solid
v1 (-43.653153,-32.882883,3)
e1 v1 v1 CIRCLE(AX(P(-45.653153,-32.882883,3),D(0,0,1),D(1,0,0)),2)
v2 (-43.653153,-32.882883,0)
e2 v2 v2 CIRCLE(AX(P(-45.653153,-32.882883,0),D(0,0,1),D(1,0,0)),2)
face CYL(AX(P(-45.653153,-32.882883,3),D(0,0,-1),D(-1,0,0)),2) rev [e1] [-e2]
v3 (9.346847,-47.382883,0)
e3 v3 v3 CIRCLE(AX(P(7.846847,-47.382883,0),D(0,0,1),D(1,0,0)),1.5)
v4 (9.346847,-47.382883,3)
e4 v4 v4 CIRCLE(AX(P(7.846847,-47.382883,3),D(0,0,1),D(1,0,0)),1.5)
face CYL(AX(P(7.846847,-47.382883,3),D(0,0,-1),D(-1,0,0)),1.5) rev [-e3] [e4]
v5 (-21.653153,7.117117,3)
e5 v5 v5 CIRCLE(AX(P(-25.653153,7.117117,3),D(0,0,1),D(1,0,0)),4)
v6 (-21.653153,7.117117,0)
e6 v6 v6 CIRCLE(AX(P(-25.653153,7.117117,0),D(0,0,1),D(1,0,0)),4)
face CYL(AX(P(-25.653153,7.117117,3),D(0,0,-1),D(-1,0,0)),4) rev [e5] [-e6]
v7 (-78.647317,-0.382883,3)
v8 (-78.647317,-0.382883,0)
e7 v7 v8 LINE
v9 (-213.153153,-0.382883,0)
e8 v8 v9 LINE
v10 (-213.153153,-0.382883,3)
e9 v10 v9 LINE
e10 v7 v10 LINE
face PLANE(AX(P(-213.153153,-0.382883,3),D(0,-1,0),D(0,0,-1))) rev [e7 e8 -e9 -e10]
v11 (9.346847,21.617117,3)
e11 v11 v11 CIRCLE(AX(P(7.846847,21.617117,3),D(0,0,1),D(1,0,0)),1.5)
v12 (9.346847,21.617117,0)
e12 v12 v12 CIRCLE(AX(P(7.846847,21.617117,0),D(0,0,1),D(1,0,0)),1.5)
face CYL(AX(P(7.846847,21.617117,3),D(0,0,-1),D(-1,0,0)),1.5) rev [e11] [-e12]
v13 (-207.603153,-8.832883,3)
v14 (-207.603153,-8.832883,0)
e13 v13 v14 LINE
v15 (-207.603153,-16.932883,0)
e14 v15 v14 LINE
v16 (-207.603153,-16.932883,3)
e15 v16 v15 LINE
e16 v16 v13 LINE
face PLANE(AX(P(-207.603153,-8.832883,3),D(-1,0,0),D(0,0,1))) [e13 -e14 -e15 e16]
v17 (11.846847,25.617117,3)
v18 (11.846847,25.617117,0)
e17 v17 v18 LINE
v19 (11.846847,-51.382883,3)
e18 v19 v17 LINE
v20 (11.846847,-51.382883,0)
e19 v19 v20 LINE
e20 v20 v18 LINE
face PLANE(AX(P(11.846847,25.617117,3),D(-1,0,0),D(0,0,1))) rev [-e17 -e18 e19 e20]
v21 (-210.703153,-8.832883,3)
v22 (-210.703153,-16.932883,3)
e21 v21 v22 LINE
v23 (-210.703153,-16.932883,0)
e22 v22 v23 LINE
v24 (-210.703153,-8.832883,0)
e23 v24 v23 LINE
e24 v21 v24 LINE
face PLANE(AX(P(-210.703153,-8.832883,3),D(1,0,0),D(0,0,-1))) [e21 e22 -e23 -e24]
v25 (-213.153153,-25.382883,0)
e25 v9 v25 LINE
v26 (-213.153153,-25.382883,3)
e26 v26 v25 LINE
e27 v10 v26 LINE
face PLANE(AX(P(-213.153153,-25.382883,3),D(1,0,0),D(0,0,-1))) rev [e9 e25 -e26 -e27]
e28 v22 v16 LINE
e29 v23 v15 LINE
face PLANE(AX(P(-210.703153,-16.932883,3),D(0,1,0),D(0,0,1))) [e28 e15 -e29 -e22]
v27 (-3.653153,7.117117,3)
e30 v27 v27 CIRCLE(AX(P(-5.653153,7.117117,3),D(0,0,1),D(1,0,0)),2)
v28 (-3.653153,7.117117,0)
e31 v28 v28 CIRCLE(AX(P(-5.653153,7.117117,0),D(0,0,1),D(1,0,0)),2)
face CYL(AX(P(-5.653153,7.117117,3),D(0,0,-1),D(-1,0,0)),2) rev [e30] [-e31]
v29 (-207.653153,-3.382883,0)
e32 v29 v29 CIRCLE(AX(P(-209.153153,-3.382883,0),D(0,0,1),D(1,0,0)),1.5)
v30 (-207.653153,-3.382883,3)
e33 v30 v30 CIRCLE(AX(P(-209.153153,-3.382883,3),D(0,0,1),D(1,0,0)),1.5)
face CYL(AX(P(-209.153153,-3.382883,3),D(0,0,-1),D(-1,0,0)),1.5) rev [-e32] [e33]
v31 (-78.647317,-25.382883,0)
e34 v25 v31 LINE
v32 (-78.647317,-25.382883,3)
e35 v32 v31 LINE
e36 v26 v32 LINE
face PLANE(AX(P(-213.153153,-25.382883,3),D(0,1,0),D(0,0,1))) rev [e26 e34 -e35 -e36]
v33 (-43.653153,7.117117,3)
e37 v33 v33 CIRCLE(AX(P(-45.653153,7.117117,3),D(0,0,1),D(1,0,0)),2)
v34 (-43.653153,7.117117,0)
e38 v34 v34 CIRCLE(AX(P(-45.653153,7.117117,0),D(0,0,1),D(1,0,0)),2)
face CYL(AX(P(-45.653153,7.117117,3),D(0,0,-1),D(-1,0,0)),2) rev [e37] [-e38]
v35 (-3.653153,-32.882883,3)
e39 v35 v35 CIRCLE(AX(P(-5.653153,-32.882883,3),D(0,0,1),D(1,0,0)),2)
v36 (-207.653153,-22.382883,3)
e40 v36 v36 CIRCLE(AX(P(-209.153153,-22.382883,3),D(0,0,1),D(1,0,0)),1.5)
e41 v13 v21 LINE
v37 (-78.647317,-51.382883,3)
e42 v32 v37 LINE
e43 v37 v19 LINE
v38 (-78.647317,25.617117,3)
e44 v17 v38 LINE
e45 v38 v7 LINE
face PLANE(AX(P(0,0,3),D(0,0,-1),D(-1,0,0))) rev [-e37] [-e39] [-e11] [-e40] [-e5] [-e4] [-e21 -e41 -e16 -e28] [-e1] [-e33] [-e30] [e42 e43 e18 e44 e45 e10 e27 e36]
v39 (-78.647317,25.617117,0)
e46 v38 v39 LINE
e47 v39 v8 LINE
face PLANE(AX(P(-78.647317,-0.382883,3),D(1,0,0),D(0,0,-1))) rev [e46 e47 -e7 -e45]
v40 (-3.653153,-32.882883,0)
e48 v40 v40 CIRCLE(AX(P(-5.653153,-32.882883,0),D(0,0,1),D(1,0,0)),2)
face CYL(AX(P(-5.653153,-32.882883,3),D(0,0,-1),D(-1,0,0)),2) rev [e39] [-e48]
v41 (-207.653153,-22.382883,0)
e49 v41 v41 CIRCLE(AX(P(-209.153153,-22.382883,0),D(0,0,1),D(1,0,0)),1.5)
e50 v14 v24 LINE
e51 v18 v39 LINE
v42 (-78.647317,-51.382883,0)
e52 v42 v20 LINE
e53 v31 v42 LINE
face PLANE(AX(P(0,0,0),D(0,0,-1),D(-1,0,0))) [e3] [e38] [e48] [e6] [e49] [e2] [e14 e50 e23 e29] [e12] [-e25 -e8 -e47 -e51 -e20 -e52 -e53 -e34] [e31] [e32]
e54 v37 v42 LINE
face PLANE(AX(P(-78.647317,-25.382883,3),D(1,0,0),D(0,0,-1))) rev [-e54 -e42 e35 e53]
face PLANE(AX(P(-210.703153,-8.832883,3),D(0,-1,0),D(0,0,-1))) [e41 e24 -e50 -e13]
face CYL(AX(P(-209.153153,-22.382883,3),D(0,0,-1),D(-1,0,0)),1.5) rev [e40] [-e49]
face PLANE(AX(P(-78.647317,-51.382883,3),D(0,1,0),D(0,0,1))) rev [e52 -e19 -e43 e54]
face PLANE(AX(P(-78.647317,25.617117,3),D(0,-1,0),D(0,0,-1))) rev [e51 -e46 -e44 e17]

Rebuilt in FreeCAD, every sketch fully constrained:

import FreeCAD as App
import Part
import Sketcher

V = App.Vector
Q = App.Units.Quantity


def add_polygon(sketch, points):
    """Adds a closed chain of lines whose ends are joined by coincident constraints."""
    first, n = sketch.GeometryCount, len(points)
    for a, b in zip(points, points[1:] + points[:1]):
        sketch.addGeometry(Part.LineSegment(App.Vector(*a, 0), App.Vector(*b, 0)), False)
    for i in range(n):
        sketch.addConstraint(Sketcher.Constraint("Coincident", first + i, 2, first + (i + 1) % n, 1))

doc = App.newDocument("Part")
body = doc.addObject("PartDesign::Body", "Body")

sketch1 = doc.addObject("Sketcher::SketchObject", "Sketch")
body.addObject(sketch1)
sketch1.AttachmentSupport = (doc.XY_Plane, [""])
sketch1.MapMode = "FlatFace"
add_polygon(sketch1, [(11.8, -51.4), (11.8, 25.6), (-78.6, 25.6), (-78.6, -0.4), (-213.2, -0.4), (-213.2, -25.4), (-78.6, -25.4), (-78.6, -51.4)])
sketch1.addGeometry(Part.Circle(V(7.8, -47.4, 0), V(0, 0, 1), 1.5), False)
sketch1.addGeometry(Part.Circle(V(-5.7, -32.9, 0), V(0, 0, 1), 2), False)
sketch1.addGeometry(Part.Circle(V(-45.7, -32.9, 0), V(0, 0, 1), 2), False)
sketch1.addGeometry(Part.Circle(V(-209.2, -22.4, 0), V(0, 0, 1), 1.5), False)
sketch1.addGeometry(Part.Circle(V(-5.7, 7.1, 0), V(0, 0, 1), 2), False)
sketch1.addGeometry(Part.Circle(V(-25.7, 7.1, 0), V(0, 0, 1), 4), False)
sketch1.addGeometry(Part.Circle(V(-45.7, 7.1, 0), V(0, 0, 1), 2), False)
sketch1.addGeometry(Part.Circle(V(7.8, 21.6, 0), V(0, 0, 1), 1.5), False)
add_polygon(sketch1, [(-210.7, -16.9), (-210.7, -8.8), (-207.6, -8.8), (-207.6, -16.9)])
sketch1.addGeometry(Part.Circle(V(-209.2, -3.4, 0), V(0, 0, 1), 1.5), False)
sketch1.addConstraint([
    Sketcher.Constraint("Vertical", 0),
    Sketcher.Constraint("Horizontal", 1),
    Sketcher.Constraint("Vertical", 2),
    Sketcher.Constraint("Horizontal", 3),
    Sketcher.Constraint("Vertical", 4),
    Sketcher.Constraint("Horizontal", 5),
    Sketcher.Constraint("Vertical", 6),
    Sketcher.Constraint("Horizontal", 7),
    Sketcher.Constraint("Vertical", 16),
    Sketcher.Constraint("Horizontal", 17),
    Sketcher.Constraint("Vertical", 18),
    Sketcher.Constraint("Horizontal", 19),
    Sketcher.Constraint("Equal", 9, 10),
    Sketcher.Constraint("Equal", 8, 11),
    Sketcher.Constraint("Equal", 10, 12),
    Sketcher.Constraint("Equal", 12, 14),
    Sketcher.Constraint("Equal", 11, 15),
    Sketcher.Constraint("Equal", 15, 20),
    Sketcher.Constraint("Horizontal", 9, 3, 10, 3),
    Sketcher.Constraint("Horizontal", 12, 3, 13, 3),
    Sketcher.Constraint("Horizontal", 13, 3, 14, 3),
    Sketcher.Constraint("Vertical", 9, 3, 12, 3),
    Sketcher.Constraint("Vertical", 10, 3, 14, 3),
    Sketcher.Constraint("Vertical", 8, 3, 15, 3),
    Sketcher.Constraint("Vertical", 11, 3, 20, 3),
    Sketcher.Constraint("Vertical", 2, 2, 5, 2),
    Sketcher.Constraint("Equal", 2, 6),
    Sketcher.Constraint("Diameter", 8, Q("3 mm")),
    Sketcher.Constraint("Diameter", 9, Q("4 mm")),
    Sketcher.Constraint("Diameter", 13, Q("8 mm")),
    Sketcher.Constraint("DistanceY", 0, 1, 0, 2, Q("77 mm")),
    Sketcher.Constraint("DistanceY", 2, 2, 2, 1, Q("26 mm")),
    Sketcher.Constraint("DistanceX", 17, 1, 17, 2, Q("3.1 mm")),
    Sketcher.Constraint("DistanceY", 16, 1, 16, 2, Q("8.1 mm")),
    Sketcher.Constraint("DistanceX", 10, 3, 9, 3, Q("40 mm")),
    Sketcher.Constraint("DistanceX", 11, 3, 8, 3, Q("217 mm")),
    Sketcher.Constraint("DistanceY", 8, 3, 11, 3, Q("25 mm")),
    Sketcher.Constraint("DistanceY", 9, 3, 12, 3, Q("40 mm")),
    Sketcher.Constraint("DistanceX", 13, 3, 12, 3, Q("20 mm")),
    Sketcher.Constraint("DistanceY", 8, 3, 15, 3, Q("69 mm")),
    Sketcher.Constraint("DistanceY", 11, 3, 20, 3, Q("19 mm")),
    Sketcher.Constraint("DistanceX", 15, 3, 0, 2, Q("4 mm")),
    Sketcher.Constraint("DistanceY", 15, 3, 0, 2, Q("4 mm")),
    Sketcher.Constraint("DistanceX", 3, 2, 20, 3, Q("4 mm")),
    Sketcher.Constraint("DistanceX", 9, 3, 8, 3, Q("13.5 mm")),
    Sketcher.Constraint("DistanceY", 8, 3, 9, 3, Q("14.5 mm")),
    Sketcher.Constraint("DistanceX", 16, 2, 20, 3, Q("1.55 mm")),
    Sketcher.Constraint("DistanceY", 16, 2, 20, 3, Q("5.45 mm")),
    Sketcher.Constraint("DistanceX", 1, 2, 1, 1, Q("90.494164 mm")),
    Sketcher.Constraint("DistanceX", -1, 1, 8, 3, Q("7.846847 mm")),
    Sketcher.Constraint("DistanceY", 8, 3, -1, 1, Q("47.382883 mm")),
])
pad1 = doc.addObject("PartDesign::Pad", "Pad")
body.addObject(pad1)
pad1.Profile = sketch1
pad1.Length = 3

doc.recompute()
